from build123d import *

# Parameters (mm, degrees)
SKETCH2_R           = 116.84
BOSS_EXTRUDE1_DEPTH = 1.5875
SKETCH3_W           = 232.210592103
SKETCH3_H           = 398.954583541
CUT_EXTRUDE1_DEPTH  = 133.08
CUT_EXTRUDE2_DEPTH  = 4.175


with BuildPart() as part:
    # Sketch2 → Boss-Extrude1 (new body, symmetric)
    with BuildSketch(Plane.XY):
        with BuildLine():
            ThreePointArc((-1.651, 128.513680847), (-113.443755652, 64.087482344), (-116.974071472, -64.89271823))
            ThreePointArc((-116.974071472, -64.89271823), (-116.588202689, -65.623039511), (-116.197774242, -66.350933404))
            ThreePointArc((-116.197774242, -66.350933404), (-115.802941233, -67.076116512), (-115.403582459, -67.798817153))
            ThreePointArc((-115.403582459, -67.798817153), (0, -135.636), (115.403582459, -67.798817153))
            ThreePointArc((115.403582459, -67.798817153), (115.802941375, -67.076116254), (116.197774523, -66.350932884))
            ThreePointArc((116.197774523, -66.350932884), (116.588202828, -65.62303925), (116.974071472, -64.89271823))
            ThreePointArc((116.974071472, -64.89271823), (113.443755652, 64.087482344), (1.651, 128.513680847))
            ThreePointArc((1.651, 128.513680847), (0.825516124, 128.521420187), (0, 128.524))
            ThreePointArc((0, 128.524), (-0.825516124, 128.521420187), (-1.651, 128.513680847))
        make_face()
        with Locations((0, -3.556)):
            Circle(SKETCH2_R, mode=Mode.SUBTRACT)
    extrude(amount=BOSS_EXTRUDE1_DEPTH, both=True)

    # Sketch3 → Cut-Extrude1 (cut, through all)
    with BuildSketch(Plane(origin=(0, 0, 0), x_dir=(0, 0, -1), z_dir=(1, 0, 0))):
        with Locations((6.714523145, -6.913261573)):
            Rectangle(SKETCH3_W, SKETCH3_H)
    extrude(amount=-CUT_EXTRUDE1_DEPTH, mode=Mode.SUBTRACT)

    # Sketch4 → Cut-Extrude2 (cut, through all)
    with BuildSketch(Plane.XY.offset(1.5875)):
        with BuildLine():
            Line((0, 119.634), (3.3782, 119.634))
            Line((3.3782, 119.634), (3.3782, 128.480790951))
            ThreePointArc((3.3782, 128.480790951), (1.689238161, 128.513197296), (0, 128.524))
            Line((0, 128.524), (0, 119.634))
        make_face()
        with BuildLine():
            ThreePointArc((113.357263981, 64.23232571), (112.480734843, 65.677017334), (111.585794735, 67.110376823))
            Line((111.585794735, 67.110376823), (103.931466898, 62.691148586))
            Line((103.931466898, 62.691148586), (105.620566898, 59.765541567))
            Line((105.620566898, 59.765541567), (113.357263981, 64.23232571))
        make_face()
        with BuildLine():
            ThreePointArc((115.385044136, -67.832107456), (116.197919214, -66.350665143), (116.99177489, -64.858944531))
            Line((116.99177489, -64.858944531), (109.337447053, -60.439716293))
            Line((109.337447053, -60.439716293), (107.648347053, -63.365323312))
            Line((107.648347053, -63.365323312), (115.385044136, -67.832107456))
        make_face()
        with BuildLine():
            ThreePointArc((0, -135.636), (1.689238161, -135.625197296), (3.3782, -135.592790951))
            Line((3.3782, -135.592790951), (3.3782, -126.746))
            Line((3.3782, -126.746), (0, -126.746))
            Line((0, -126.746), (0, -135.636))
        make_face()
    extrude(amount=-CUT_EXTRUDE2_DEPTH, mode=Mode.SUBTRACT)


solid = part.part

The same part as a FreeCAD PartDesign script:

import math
import FreeCAD as App
import Part
import Sketcher

V = App.Vector
Q = App.Units.Quantity

doc = App.newDocument("Part")
body = doc.addObject("PartDesign::Body", "Body")

# Sketch on XY plane
sketch1 = body.newObject("Sketcher::SketchObject", "Sketch")
sketch1.AttachmentSupport = (doc.getObject("XY_Plane"), [""])
sketch1.MapMode = "FlatFace"
sketch1.addGeometry([
    Part.ArcOfCircle(Part.Circle(V(0, -3.556, 0), V(0, 0, 1), 132.08), math.radians(90.716216), math.radians(207.670794)),  # 0
    Part.ArcOfCircle(Part.Circle(V(0.000013, -3.555993, 0), V(0, 0, 1), 132.080014), math.radians(-152.329206), math.radians(-151.612581)),  # 1
    Part.ArcOfCircle(Part.Circle(V(0.000026, -3.555986, 0), V(0, 0, 1), 132.08003), math.radians(-151.61258), math.radians(-150.896207)),  # 2
    Part.ArcOfCircle(Part.Circle(V(0, -3.556, 0), V(0, 0, 1), 132.08), math.radians(-150.896207), math.radians(-29.103793)),  # 3
    Part.ArcOfCircle(Part.Circle(V(-0.000007, -3.555996, 0), V(0, 0, 1), 132.080008), math.radians(-29.103793), math.radians(-28.387419)),  # 4
    Part.ArcOfCircle(Part.Circle(V(-0.00001, -3.555995, 0), V(0, 0, 1), 132.080012), math.radians(-28.387419), math.radians(-27.670794)),  # 5
    Part.ArcOfCircle(Part.Circle(V(0, -3.556, 0), V(0, 0, 1), 132.08), math.radians(-27.670794), math.radians(89.283784)),  # 6
    Part.ArcOfCircle(Part.Circle(V(0, -3.555979, 0), V(0, 0, 1), 132.079979), math.radians(89.283784), math.radians(90)),  # 7
    Part.ArcOfCircle(Part.Circle(V(0, -3.555979, 0), V(0, 0, 1), 132.079979), math.radians(90), math.radians(90.716216)),  # 8
    Part.Circle(V(0, -3.556, 0), V(0, 0, 1), 116.84),  # 9
], False)
sketch1.addConstraint([
    Sketcher.Constraint("Coincident", 0, 2, 1, 1),
    Sketcher.Constraint("Coincident", 1, 2, 2, 1),
    Sketcher.Constraint("Coincident", 2, 2, 3, 1),
    Sketcher.Constraint("Coincident", 3, 2, 4, 1),
    Sketcher.Constraint("Coincident", 4, 2, 5, 1),
    Sketcher.Constraint("Coincident", 5, 2, 6, 1),
    Sketcher.Constraint("Coincident", 6, 2, 7, 1),
    Sketcher.Constraint("Coincident", 7, 2, 8, 1),
    Sketcher.Constraint("Coincident", 8, 2, 0, 1),
    Sketcher.Constraint("Coincident", 3, 3, 0, 3),
    Sketcher.Constraint("Coincident", 4, 3, 0, 3),
    Sketcher.Constraint("Coincident", 5, 3, 4, 3),
    Sketcher.Constraint("Coincident", 6, 3, 0, 3),
    Sketcher.Constraint("Coincident", 8, 3, 7, 3),
    Sketcher.Constraint("Coincident", 9, 3, 0, 3),
    Sketcher.Constraint("PointOnObject", 0, 3, -2),
    Sketcher.Constraint("PointOnObject", 7, 3, -2),
    Sketcher.Constraint("PointOnObject", 7, 2, -2),
    Sketcher.Constraint("Diameter", 9, Q("9.2 in")),
    Sketcher.Constraint("Radius", 0, Q("5.2 in")),
    Sketcher.Constraint("DistanceY", 0, 3, -1, 1, Q("0.14 in")),
    Sketcher.Constraint("DistanceX", 8, 2, 6, 2, Q("0.13 in")),
    Sketcher.Constraint("DistanceX", -1, 1, 6, 2, Q("0.065 in")),
    Sketcher.Constraint("Radius", 2, Q("132.08003 mm")),
    Sketcher.Constraint("Radius", 7, Q("132.079979 mm")),
    Sketcher.Constraint("Radius", 1, Q("132.080014 mm")),
    Sketcher.Constraint("DistanceY", 2, 2, 0, 2, Q("2.906099 mm")),
    Sketcher.Constraint("DistanceY", 3, 2, 5, 2, Q("2.906099 mm")),
    Sketcher.Constraint("DistanceX", 0, 2, -1, 1, Q("116.974071 mm")),
    Sketcher.Constraint("DistanceX", -1, 1, 5, 2, Q("116.974071 mm")),
    Sketcher.Constraint("DistanceY", 1, 2, 5, 3, Q("62.794939 mm")),
    Sketcher.Constraint("DistanceY", 3, 2, 2, 3, Q("64.242832 mm")),
    Sketcher.Constraint("DistanceX", 2, 3, 4, 2, Q("116.197748 mm")),
])
pad1 = body.newObject("PartDesign::Pad", "Pad")
pad1.Profile = sketch1
pad1.Length = Q("0.125 in")
pad1.Midplane = True

# Sketch on YZ plane
sketch2 = body.newObject("Sketcher::SketchObject", "Sketch001")
sketch2.AttachmentSupport = (doc.getObject("YZ_Plane"), [""])
sketch2.MapMode = "FlatFace"
sketch2.addGeometry([
    Part.LineSegment(V(192.56403, 109.390773, 0), V(-206.390553, 109.390773, 0)),
    Part.LineSegment(V(-206.390553, 109.390773, 0), V(-206.390553, -122.819819, 0)),
    Part.LineSegment(V(-206.390553, -122.819819, 0), V(192.56403, -122.819819, 0)),
    Part.LineSegment(V(192.56403, -122.819819, 0), V(192.56403, 109.390773, 0)),
], False)
sketch2.addConstraint([
    Sketcher.Constraint("Coincident", 0, 2, 1, 1),
    Sketcher.Constraint("Coincident", 1, 2, 2, 1),
    Sketcher.Constraint("Coincident", 2, 2, 3, 1),
    Sketcher.Constraint("Coincident", 3, 2, 0, 1),
    Sketcher.Constraint("Horizontal", 0),
    Sketcher.Constraint("Vertical", 1),
    Sketcher.Constraint("Horizontal", 2),
    Sketcher.Constraint("Vertical", 3),
    Sketcher.Constraint("DistanceX", 0, 2, 0, 1, Q("398.954584 mm")),
    Sketcher.Constraint("DistanceY", 1, 2, 1, 1, Q("232.210592 mm")),
    Sketcher.Constraint("DistanceY", 1, 2, -1, 1, Q("122.819819 mm")),
    Sketcher.Constraint("DistanceX", -1, 1, 2, 2, Q("192.56403 mm")),
])
pocket1 = body.newObject("PartDesign::Pocket", "Pocket")
pocket1.Profile = sketch2
pocket1.Type = "ThroughAll"

# Sketch on XY plane
sketch3 = body.newObject("Sketcher::SketchObject", "Sketch002")
sketch3.AttachmentSupport = (doc.getObject("XY_Plane"), [""])
sketch3.MapMode = "FlatFace"
sketch3.AttachmentOffset = App.Placement(V(0, 0, 0.0625 * 25.4), App.Rotation())
sketch3.addGeometry([
    Part.LineSegment(V(0, 119.634, 0), V(3.3782, 119.634, 0)),  # 0
    Part.LineSegment(V(3.3782, 119.634, 0), V(3.3782, 128.480791, 0)),  # 1
    Part.ArcOfCircle(Part.Circle(V(0, -3.555998, 0), V(0, 0, 1), 132.079998), math.radians(88.53439), math.radians(90)),  # 2
    Part.LineSegment(V(0, 128.524, 0), V(0, 119.634, 0)),  # 3
    Part.ArcOfCircle(Part.Circle(V(0.000004, -3.555997, 0), V(0, 0, 1), 132.079995), math.radians(30.879678), math.radians(32.345748)),  # 4
    Part.LineSegment(V(111.585795, 67.110377, 0), V(103.931467, 62.691149, 0)),  # 5
    Part.LineSegment(V(103.931467, 62.691149, 0), V(105.620567, 59.765542, 0)),  # 6
    Part.LineSegment(V(105.620567, 59.765542, 0), V(113.357264, 64.232326, 0)),  # 7
    Part.ArcOfCircle(Part.Circle(V(0.000003, -3.556001, 0), V(0, 0, 1), 132.079997), math.radians(-29.120322), math.radians(-27.654252)),  # 8
    Part.LineSegment(V(116.991775, -64.858945, 0), V(109.337447, -60.439716, 0)),  # 9
    Part.LineSegment(V(109.337447, -60.439716, 0), V(107.648347, -63.365323, 0)),  # 10
    Part.LineSegment(V(107.648347, -63.365323, 0), V(115.385044, -67.832107, 0)),  # 11
    Part.ArcOfCircle(Part.Circle(V(0, -3.556002, 0), V(0, 0, 1), 132.079998), math.radians(-90), math.radians(-88.53439)),  # 12
    Part.LineSegment(V(3.3782, -135.592791, 0), V(3.3782, -126.746, 0)),  # 13
    Part.LineSegment(V(3.3782, -126.746, 0), V(0, -126.746, 0)),  # 14
    Part.LineSegment(V(0, -126.746, 0), V(0, -135.636, 0)),  # 15
], False)
sketch3.addConstraint([
    Sketcher.Constraint("Coincident", 0, 2, 1, 1),
    Sketcher.Constraint("Coincident", 1, 2, 2, 1),
    Sketcher.Constraint("Coincident", 2, 2, 3, 1),
    Sketcher.Constraint("Coincident", 3, 2, 0, 1),
    Sketcher.Constraint("Coincident", 4, 2, 5, 1),
    Sketcher.Constraint("Coincident", 5, 2, 6, 1),
    Sketcher.Constraint("Coincident", 6, 2, 7, 1),
    Sketcher.Constraint("Coincident", 7, 2, 4, 1),
    Sketcher.Constraint("Coincident", 8, 2, 9, 1),
    Sketcher.Constraint("Coincident", 9, 2, 10, 1),
    Sketcher.Constraint("Coincident", 10, 2, 11, 1),
    Sketcher.Constraint("Coincident", 11, 2, 8, 1),
    Sketcher.Constraint("Coincident", 12, 2, 13, 1),
    Sketcher.Constraint("Coincident", 13, 2, 14, 1),
    Sketcher.Constraint("Coincident", 14, 2, 15, 1),
    Sketcher.Constraint("Coincident", 15, 2, 12, 1),
    Sketcher.Constraint("Horizontal", 0),
    Sketcher.Constraint("Vertical", 1),
    Sketcher.Constraint("Vertical", 3),
    Sketcher.Constraint("Vertical", 13),
    Sketcher.Constraint("Horizontal", 14),
    Sketcher.Constraint("Vertical", 15),
    Sketcher.Constraint("Coincident", 4, 3, 2, 3),
    Sketcher.Constraint("Coincident", 8, 3, 2, 3),
    Sketcher.Constraint("Coincident", 12, 3, 2, 3),
    Sketcher.Constraint("Equal", 2, 8),
    Sketcher.Constraint("Equal", 8, 12),
    Sketcher.Constraint("PointOnObject", 2, 3, -2),
    Sketcher.Constraint("PointOnObject", 2, 2, -2),
    Sketcher.Constraint("PointOnObject", 14, 2, -2),
    Sketcher.Constraint("Perpendicular", 5, 6),
    Sketcher.Constraint("Perpendicular", 6, 7),
    Sketcher.Constraint("Perpendicular", 9, 10),
    Sketcher.Constraint("Perpendicular", 10, 11),
    Sketcher.Constraint("Vertical", 1, 2, 12, 2),
    Sketcher.Constraint("Equal", 1, 13),
    Sketcher.Constraint("Equal", 5, 9),
    Sketcher.Constraint("Equal", 6, 10),
    Sketcher.Constraint("Equal", 7, 11),
    Sketcher.Constraint("Radius", 2, Q("5.1999999 in")),
    Sketcher.Constraint("Angle", 5, Q("-150 deg")),
    Sketcher.Constraint("Angle", 9, Q("150 deg")),
    Sketcher.Constraint("DistanceY", 3, 2, 3, 1, Q("0.35 in")),
    Sketcher.Constraint("DistanceX", 0, 1, 0, 2, Q("0.133 in")),
    Sketcher.Constraint("DistanceY", 2, 3, -1, 1, Q("0.1399999 in")),
    Sketcher.Constraint("Distance", 6, Q("0.133 in")),
    Sketcher.Constraint("Radius", 4, Q("132.079995 mm")),
    Sketcher.Constraint("Distance", 7, Q("8.933568 mm")),
    Sketcher.Constraint("DistanceY", -1, 1, 5, 2, Q("62.691149 mm")),
])
pocket2 = body.newObject("PartDesign::Pocket", "Pocket001")
pocket2.Profile = sketch3
pocket2.Type = "ThroughAll"

doc.recompute()
